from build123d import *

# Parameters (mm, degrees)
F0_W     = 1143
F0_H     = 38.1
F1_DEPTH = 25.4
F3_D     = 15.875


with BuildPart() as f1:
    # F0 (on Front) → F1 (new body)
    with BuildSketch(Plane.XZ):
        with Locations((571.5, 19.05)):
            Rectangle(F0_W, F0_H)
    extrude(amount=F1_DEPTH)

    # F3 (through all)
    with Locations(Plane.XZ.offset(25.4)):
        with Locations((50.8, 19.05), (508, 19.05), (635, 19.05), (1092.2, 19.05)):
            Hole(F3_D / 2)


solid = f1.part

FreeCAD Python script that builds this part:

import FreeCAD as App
import Part
import Sketcher
Q = App.Units.Quantity

doc = App.newDocument("Part")
body = doc.addObject("PartDesign::Body", "Body")

# Sketch on XZ plane
sketch1 = body.newObject("Sketcher::SketchObject", "Sketch")
sketch1.AttachmentSupport = (doc.getObject("XZ_Plane"), [""])
sketch1.MapMode = "FlatFace"
sketch1.addGeometry(Part.LineSegment(App.Vector(0, 38, 0), App.Vector(0, 0, 0)), False)
sketch1.addGeometry(Part.LineSegment(App.Vector(0, 0, 0), App.Vector(1143, 0, 0)), False)
sketch1.addGeometry(Part.LineSegment(App.Vector(1143, 0, 0), App.Vector(1143, 38, 0)), False)
sketch1.addGeometry(Part.LineSegment(App.Vector(1143, 38, 0), App.Vector(0, 38, 0)), False)
sketch1.addConstraint(Sketcher.Constraint("Coincident", 0, 2, 1, 1))
sketch1.addConstraint(Sketcher.Constraint("Coincident", 1, 2, 2, 1))
sketch1.addConstraint(Sketcher.Constraint("Coincident", 2, 2, 3, 1))
sketch1.addConstraint(Sketcher.Constraint("Coincident", 3, 2, 0, 1))
sketch1.addConstraint(Sketcher.Constraint("Vertical", 0))
sketch1.addConstraint(Sketcher.Constraint("Horizontal", 1))
sketch1.addConstraint(Sketcher.Constraint("Vertical", 2))
sketch1.addConstraint(Sketcher.Constraint("Horizontal", 3))
sketch1.addConstraint(Sketcher.Constraint("Coincident", 0, 2, -1, 1))
sketch1.addConstraint(Sketcher.Constraint("DistanceX", 1, 1, 1, 2, Q("45 in")))
sketch1.addConstraint(Sketcher.Constraint("DistanceY", 0, 2, 0, 1, Q("1.5 in")))
pad1 = body.newObject("PartDesign::Pad", "Pad")
pad1.Profile = sketch1
pad1.Length = Q("1 in")

# Sketch on XZ plane
sketch2 = body.newObject("Sketcher::SketchObject", "Sketch001")
sketch2.AttachmentSupport = (doc.getObject("XZ_Plane"), [""])
sketch2.MapMode = "FlatFace"
sketch2.AttachmentOffset = App.Placement(App.Vector(0, 0, 1 * 25.4), App.Rotation())
sketch2.addGeometry(Part.Circle(App.Vector(51, 19, 0), App.Vector(0, 0, 1), 8), False)
sketch2.addGeometry(Part.Circle(App.Vector(508, 19, 0), App.Vector(0, 0, 1), 8), False)
sketch2.addGeometry(Part.Circle(App.Vector(635, 19, 0), App.Vector(0, 0, 1), 8), False)
sketch2.addGeometry(Part.Circle(App.Vector(1092, 19, 0), App.Vector(0, 0, 1), 8), False)
sketch2.addConstraint(Sketcher.Constraint("Equal", 0, 1))
sketch2.addConstraint(Sketcher.Constraint("Equal", 1, 2))
sketch2.addConstraint(Sketcher.Constraint("Equal", 2, 3))
sketch2.addConstraint(Sketcher.Constraint("Horizontal", 0, 3, 1, 3))
sketch2.addConstraint(Sketcher.Constraint("Horizontal", 1, 3, 2, 3))
sketch2.addConstraint(Sketcher.Constraint("Horizontal", 2, 3, 3, 3))
sketch2.addConstraint(Sketcher.Constraint("Diameter", 0, Q("0.625 in")))
sketch2.addConstraint(Sketcher.Constraint("DistanceX", -1, 1, 0, 3, Q("2 in")))
sketch2.addConstraint(Sketcher.Constraint("DistanceX", -1, 1, 1, 3, Q("20 in")))
sketch2.addConstraint(Sketcher.Constraint("DistanceX", -1, 1, 2, 3, Q("25 in")))
sketch2.addConstraint(Sketcher.Constraint("DistanceX", -1, 1, 3, 3, Q("43 in")))
sketch2.addConstraint(Sketcher.Constraint("DistanceY", -1, 1, 0, 3, Q("0.75 in")))
doc.recompute()
hole = body.newObject("PartDesign::Hole", "Hole")
hole.Profile = sketch2
hole.ThreadType = "None"
hole.Diameter = Q("0.625 in")
hole.DepthType = "ThroughAll"

doc.recompute()
